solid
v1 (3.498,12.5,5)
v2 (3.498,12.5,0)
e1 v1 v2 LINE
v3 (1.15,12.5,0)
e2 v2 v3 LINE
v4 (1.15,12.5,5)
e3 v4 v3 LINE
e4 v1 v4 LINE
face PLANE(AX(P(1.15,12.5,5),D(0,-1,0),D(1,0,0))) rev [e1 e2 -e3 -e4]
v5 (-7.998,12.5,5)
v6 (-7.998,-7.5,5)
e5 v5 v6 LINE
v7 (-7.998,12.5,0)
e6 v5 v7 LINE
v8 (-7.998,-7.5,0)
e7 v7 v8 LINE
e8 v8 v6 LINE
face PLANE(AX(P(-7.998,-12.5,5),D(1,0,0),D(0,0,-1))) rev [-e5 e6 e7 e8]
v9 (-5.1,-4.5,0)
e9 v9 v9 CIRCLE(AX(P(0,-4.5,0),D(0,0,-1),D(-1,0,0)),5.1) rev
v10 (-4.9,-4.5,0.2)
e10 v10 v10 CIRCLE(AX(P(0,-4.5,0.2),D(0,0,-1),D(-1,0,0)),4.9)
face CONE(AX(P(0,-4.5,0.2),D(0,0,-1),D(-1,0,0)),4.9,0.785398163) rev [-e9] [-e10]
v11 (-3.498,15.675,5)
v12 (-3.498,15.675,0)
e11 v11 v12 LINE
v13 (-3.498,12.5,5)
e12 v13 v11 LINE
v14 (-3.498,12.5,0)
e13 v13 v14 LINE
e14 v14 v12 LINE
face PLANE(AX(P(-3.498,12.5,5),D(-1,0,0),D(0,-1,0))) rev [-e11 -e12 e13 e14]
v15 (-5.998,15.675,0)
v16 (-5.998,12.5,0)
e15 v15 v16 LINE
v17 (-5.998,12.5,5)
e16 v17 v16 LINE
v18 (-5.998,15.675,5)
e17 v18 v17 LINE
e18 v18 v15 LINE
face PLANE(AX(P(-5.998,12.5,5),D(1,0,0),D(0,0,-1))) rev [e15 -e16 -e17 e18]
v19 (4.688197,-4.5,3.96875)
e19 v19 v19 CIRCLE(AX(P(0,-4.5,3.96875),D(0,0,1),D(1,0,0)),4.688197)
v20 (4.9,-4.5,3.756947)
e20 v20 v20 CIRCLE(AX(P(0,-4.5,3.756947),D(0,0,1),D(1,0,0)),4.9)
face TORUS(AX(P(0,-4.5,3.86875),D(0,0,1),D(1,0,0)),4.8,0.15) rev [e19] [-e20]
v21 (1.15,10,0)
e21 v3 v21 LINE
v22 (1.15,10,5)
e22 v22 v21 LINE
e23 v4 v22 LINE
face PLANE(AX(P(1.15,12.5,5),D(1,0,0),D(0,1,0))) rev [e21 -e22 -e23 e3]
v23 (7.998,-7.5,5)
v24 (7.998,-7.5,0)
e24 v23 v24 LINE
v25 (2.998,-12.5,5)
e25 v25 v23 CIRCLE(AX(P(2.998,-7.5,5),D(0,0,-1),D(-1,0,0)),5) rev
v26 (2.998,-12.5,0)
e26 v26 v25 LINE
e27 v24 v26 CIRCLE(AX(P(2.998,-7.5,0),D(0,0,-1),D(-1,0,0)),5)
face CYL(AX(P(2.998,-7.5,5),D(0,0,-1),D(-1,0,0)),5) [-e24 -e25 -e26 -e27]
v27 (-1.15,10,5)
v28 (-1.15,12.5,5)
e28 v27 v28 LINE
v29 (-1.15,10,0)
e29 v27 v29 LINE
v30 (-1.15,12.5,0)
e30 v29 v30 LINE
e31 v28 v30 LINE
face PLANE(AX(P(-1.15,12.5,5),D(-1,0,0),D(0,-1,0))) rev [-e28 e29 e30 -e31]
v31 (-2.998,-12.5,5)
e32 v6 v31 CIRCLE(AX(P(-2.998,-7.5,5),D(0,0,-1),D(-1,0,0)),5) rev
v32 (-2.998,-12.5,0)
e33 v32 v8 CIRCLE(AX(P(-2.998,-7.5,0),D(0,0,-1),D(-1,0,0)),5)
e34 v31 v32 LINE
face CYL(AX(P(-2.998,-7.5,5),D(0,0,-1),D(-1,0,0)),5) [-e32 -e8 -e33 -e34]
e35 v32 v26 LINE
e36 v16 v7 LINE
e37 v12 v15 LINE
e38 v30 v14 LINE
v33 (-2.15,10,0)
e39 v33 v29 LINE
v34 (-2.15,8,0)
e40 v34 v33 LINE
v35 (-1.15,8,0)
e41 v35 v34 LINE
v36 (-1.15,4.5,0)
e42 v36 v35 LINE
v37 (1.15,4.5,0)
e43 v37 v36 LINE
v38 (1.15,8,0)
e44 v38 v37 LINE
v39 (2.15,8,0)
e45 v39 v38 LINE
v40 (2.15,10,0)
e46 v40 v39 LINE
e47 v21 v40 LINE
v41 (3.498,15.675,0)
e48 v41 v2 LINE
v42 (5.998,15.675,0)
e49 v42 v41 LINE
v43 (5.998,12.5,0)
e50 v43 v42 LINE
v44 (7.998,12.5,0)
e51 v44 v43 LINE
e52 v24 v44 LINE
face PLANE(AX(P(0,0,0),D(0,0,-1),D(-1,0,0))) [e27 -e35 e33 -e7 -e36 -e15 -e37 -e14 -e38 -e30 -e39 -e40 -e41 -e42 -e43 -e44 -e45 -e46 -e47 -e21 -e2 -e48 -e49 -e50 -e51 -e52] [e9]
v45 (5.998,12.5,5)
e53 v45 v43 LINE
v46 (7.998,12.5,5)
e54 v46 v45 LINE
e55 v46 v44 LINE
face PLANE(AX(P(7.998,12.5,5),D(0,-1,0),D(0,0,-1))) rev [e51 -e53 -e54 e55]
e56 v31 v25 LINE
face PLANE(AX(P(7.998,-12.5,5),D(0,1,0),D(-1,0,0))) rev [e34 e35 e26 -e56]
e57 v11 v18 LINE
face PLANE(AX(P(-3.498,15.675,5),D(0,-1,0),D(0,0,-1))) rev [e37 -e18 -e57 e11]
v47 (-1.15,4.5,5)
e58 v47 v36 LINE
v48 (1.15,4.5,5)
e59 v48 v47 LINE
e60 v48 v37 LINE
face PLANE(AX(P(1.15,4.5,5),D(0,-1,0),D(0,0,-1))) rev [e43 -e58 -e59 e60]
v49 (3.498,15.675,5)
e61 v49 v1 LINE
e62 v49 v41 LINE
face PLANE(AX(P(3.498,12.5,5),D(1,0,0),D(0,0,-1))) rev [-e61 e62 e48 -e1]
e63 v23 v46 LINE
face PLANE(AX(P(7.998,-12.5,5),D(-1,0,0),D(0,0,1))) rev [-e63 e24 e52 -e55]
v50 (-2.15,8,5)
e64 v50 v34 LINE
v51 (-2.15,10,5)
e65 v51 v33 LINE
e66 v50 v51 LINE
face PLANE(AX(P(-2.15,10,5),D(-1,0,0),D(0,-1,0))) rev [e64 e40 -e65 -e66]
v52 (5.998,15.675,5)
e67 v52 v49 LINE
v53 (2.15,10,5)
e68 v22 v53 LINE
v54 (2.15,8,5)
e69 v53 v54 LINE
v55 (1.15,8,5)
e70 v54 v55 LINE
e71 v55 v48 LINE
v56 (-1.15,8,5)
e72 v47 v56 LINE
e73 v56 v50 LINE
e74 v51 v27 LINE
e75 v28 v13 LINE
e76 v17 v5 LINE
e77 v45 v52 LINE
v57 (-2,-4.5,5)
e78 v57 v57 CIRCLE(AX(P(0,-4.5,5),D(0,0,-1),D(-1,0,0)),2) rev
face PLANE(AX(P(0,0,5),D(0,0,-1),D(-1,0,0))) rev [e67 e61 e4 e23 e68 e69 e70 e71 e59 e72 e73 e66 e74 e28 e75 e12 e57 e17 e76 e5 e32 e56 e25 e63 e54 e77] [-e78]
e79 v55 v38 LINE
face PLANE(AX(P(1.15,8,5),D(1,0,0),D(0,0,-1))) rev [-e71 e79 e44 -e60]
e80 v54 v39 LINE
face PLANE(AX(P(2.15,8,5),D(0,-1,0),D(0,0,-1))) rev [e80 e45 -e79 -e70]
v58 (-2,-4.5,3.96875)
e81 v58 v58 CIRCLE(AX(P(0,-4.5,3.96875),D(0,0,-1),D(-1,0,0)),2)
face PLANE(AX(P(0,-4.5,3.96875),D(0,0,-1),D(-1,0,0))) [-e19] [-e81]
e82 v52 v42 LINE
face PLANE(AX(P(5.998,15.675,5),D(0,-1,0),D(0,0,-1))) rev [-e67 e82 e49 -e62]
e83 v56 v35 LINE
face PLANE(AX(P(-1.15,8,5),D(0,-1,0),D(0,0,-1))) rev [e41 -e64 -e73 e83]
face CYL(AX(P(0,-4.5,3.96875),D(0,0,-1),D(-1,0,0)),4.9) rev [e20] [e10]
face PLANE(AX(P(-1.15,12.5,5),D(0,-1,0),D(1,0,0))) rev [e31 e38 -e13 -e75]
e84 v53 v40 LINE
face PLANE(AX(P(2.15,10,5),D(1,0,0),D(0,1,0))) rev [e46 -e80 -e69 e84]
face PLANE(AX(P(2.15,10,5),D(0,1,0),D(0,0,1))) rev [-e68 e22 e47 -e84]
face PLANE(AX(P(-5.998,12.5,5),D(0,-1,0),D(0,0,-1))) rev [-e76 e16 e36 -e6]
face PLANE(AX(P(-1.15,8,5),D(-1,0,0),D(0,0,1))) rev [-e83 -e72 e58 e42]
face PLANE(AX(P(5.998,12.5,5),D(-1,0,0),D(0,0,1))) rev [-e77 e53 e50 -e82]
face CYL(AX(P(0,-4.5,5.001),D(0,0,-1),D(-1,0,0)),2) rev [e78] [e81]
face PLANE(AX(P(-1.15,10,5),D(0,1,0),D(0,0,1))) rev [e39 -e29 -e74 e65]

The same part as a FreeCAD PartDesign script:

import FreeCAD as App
import Part
import Sketcher


def edges_at(feature, points):
    """Names of the edges that pass closest to the given points."""
    edges = feature.Shape.Edges
    near = lambda p: min(range(len(edges)), key=lambda i: edges[i].distToShape(Part.Vertex(*p))[0])
    return sorted({f"Edge{near(p) + 1}" for p in points})


def add_polygon(sketch, points):
    """Adds a closed chain of lines whose ends are joined by coincident constraints."""
    first, n = sketch.GeometryCount, len(points)
    for a, b in zip(points, points[1:] + points[:1]):
        sketch.addGeometry(Part.LineSegment(App.Vector(*a, 0), App.Vector(*b, 0)), False)
    for i in range(n):
        sketch.addConstraint(Sketcher.Constraint("Coincident", first + i, 2, first + (i + 1) % n, 1))

doc = App.newDocument("Part")
body = doc.addObject("PartDesign::Body", "Body")

# Sketch on XY plane
sketch1 = doc.addObject("Sketcher::SketchObject", "Sketch")
body.addObject(sketch1)
sketch1.AttachmentSupport = (doc.XY_Plane, [""])
sketch1.MapMode = "FlatFace"
add_polygon(sketch1, [(7.998, 12.5), (5.998, 12.5), (5.998, 15.675), (3.498, 15.675), (3.498, 12.5), (1.15, 12.5), (1.15, 10), (2.15, 10), (2.15, 8), (1.15, 8), (1.15, 4.5), (-1.15, 4.5), (-1.15, 8), (-2.15, 8), (-2.15, 10), (-1.15, 10), (-1.15, 12.5), (-3.498, 12.5), (-3.498, 15.675), (-5.998, 15.675), (-5.998, 12.5), (-7.998, 12.5), (-7.998, -12.5), (7.998, -12.5)])  # lines 0-23
sketch1.addConstraint([
    Sketcher.Constraint("Horizontal", 0),
    Sketcher.Constraint("Vertical", 1),
    Sketcher.Constraint("Horizontal", 2),
    Sketcher.Constraint("Vertical", 3),
    Sketcher.Constraint("Horizontal", 4),
    Sketcher.Constraint("Vertical", 5),
    Sketcher.Constraint("Horizontal", 6),
    Sketcher.Constraint("Vertical", 7),
    Sketcher.Constraint("Horizontal", 8),
    Sketcher.Constraint("Vertical", 9),
    Sketcher.Constraint("Horizontal", 10),
    Sketcher.Constraint("Vertical", 11),
    Sketcher.Constraint("Horizontal", 12),
    Sketcher.Constraint("Vertical", 13),
    Sketcher.Constraint("Horizontal", 14),
    Sketcher.Constraint("Vertical", 15),
    Sketcher.Constraint("Horizontal", 16),
    Sketcher.Constraint("Vertical", 17),
    Sketcher.Constraint("Horizontal", 18),
    Sketcher.Constraint("Vertical", 19),
    Sketcher.Constraint("Horizontal", 20),
    Sketcher.Constraint("Vertical", 21),
    Sketcher.Constraint("Horizontal", 22),
    Sketcher.Constraint("Vertical", 23),
    Sketcher.Constraint("Symmetric", 20, 2, 22, 2, -1, 1),
    Sketcher.Constraint("Symmetric", 8, 2, 11, 2, -2),
    Sketcher.Constraint("Symmetric", 6, 2, 13, 2, -2),
    Sketcher.Constraint("Symmetric", 4, 2, 15, 2, -2),
    Sketcher.Constraint("Symmetric", 2, 2, 17, 2, -2),
    Sketcher.Constraint("Symmetric", 0, 2, 19, 2, -2),
    Sketcher.Constraint("Horizontal", 0, 2, 3, 2),
    Sketcher.Constraint("Vertical", 5, 2, 8, 2),
    Sketcher.Constraint("Equal", 18, 5),
    Sketcher.Constraint("Equal", 20, 7),
    Sketcher.Constraint("DistanceX", 0, 2, 0, 1, 2.0),
    Sketcher.Constraint("DistanceX", 6, 1, 6, 2, 1.0),
    Sketcher.Constraint("DistanceY", 21, 2, 21, 1, 25.0),
    Sketcher.Constraint("DistanceX", 2, 2, 2, 1, 2.5),
    Sketcher.Constraint("DistanceX", 10, 2, 10, 1, 2.3),
    Sketcher.Constraint("DistanceY", 9, 2, 9, 1, 3.5),
    Sketcher.Constraint("DistanceX", 4, 2, 4, 1, 2.348),
    Sketcher.Constraint("DistanceY", 1, 1, 1, 2, 3.175),
])
pad1 = doc.addObject("PartDesign::Pad", "Pad")
body.addObject(pad1)
pad1.Profile = sketch1
pad1.Length = 5

# Sketch on XY plane
sketch2 = doc.addObject("Sketcher::SketchObject", "Sketch001")
body.addObject(sketch2)
sketch2.AttachmentSupport = (doc.XY_Plane, [""])
sketch2.MapMode = "FlatFace"
sketch2.addGeometry(Part.Circle(App.Vector(0, -4.5, 0), App.Vector(0, 0, 1), 4.9), False)
sketch2.addConstraint([
    Sketcher.Constraint("PointOnObject", 0, 3, -2),
    Sketcher.Constraint("Diameter", 0, 9.8),
    Sketcher.Constraint("DistanceY", 0, 3, -1, 1, 4.5),
])
pocket1 = doc.addObject("PartDesign::Pocket", "Pocket")
body.addObject(pocket1)
pocket1.Profile = sketch2
pocket1.Length = 3.96875
pocket1.Reversed = True

# Sketch on XY plane
sketch3 = doc.addObject("Sketcher::SketchObject", "Sketch002")
body.addObject(sketch3)
sketch3.AttachmentSupport = (doc.XY_Plane, [""])
sketch3.MapMode = "FlatFace"
sketch3.AttachmentOffset = App.Placement(App.Vector(0, 0, 3.96875), App.Rotation())
sketch3.addGeometry(Part.Circle(App.Vector(0, -4.5, 0), App.Vector(0, 0, 1), 2), False)
sketch3.addConstraint([
    Sketcher.Constraint("PointOnObject", 0, 3, -2),
    Sketcher.Constraint("Diameter", 0, 4.0),
    Sketcher.Constraint("DistanceY", 0, 3, -1, 1, 4.5),
])
pocket2 = doc.addObject("PartDesign::Pocket", "Pocket001")
body.addObject(pocket2)
pocket2.Profile = sketch3
pocket2.Type = "UpToFirst"
pocket2.Reversed = True
doc.recompute()

fillet = doc.addObject("PartDesign::Fillet", "Fillet")
body.addObject(fillet)
fillet.Base = (pocket2, edges_at(pocket2, [(7.998, -12.5, 2.5), (-7.998, -12.5, 2.5)]))
fillet.Radius = 5
doc.recompute()

chamfer = doc.addObject("PartDesign::Chamfer", "Chamfer")
body.addObject(chamfer)
chamfer.Base = (fillet, edges_at(fillet, [(4.9, -4.5, 0)]))
chamfer.Size = 0.2

# Sketch on YZ plane
sketch4 = doc.addObject("Sketcher::SketchObject", "Sketch003")
body.addObject(sketch4)
sketch4.AttachmentSupport = (doc.YZ_Plane, [""])
sketch4.MapMode = "FlatFace"
sketch4.addGeometry(Part.Circle(App.Vector(-9.3, 3.86875, 0), App.Vector(0, 0, 1), 0.15), False)
sketch4.addGeometry(Part.LineSegment(App.Vector(-4.5, 3.86875, 0), App.Vector(-4.5, -6.13125, 0)), True)  # axis
sketch4.addConstraint([
    Sketcher.Constraint("Vertical", 1),
    Sketcher.Constraint("Horizontal", 0, 3, 1, 1),
    Sketcher.Constraint("Diameter", 0, 0.3),
    Sketcher.Constraint("DistanceY", 1, 2, 1, 1, 10.0),
    Sketcher.Constraint("DistanceX", 0, 3, -1, 1, 9.3),
    Sketcher.Constraint("DistanceX", 1, 1, -1, 1, 4.5),
    Sketcher.Constraint("DistanceY", -1, 1, 0, 3, 3.86875),
])
groove = doc.addObject("PartDesign::Groove", "Groove")
body.addObject(groove)
groove.Profile = sketch4
groove.ReferenceAxis = (sketch4, ["Axis0"])
groove.Angle = 360

doc.recompute()
